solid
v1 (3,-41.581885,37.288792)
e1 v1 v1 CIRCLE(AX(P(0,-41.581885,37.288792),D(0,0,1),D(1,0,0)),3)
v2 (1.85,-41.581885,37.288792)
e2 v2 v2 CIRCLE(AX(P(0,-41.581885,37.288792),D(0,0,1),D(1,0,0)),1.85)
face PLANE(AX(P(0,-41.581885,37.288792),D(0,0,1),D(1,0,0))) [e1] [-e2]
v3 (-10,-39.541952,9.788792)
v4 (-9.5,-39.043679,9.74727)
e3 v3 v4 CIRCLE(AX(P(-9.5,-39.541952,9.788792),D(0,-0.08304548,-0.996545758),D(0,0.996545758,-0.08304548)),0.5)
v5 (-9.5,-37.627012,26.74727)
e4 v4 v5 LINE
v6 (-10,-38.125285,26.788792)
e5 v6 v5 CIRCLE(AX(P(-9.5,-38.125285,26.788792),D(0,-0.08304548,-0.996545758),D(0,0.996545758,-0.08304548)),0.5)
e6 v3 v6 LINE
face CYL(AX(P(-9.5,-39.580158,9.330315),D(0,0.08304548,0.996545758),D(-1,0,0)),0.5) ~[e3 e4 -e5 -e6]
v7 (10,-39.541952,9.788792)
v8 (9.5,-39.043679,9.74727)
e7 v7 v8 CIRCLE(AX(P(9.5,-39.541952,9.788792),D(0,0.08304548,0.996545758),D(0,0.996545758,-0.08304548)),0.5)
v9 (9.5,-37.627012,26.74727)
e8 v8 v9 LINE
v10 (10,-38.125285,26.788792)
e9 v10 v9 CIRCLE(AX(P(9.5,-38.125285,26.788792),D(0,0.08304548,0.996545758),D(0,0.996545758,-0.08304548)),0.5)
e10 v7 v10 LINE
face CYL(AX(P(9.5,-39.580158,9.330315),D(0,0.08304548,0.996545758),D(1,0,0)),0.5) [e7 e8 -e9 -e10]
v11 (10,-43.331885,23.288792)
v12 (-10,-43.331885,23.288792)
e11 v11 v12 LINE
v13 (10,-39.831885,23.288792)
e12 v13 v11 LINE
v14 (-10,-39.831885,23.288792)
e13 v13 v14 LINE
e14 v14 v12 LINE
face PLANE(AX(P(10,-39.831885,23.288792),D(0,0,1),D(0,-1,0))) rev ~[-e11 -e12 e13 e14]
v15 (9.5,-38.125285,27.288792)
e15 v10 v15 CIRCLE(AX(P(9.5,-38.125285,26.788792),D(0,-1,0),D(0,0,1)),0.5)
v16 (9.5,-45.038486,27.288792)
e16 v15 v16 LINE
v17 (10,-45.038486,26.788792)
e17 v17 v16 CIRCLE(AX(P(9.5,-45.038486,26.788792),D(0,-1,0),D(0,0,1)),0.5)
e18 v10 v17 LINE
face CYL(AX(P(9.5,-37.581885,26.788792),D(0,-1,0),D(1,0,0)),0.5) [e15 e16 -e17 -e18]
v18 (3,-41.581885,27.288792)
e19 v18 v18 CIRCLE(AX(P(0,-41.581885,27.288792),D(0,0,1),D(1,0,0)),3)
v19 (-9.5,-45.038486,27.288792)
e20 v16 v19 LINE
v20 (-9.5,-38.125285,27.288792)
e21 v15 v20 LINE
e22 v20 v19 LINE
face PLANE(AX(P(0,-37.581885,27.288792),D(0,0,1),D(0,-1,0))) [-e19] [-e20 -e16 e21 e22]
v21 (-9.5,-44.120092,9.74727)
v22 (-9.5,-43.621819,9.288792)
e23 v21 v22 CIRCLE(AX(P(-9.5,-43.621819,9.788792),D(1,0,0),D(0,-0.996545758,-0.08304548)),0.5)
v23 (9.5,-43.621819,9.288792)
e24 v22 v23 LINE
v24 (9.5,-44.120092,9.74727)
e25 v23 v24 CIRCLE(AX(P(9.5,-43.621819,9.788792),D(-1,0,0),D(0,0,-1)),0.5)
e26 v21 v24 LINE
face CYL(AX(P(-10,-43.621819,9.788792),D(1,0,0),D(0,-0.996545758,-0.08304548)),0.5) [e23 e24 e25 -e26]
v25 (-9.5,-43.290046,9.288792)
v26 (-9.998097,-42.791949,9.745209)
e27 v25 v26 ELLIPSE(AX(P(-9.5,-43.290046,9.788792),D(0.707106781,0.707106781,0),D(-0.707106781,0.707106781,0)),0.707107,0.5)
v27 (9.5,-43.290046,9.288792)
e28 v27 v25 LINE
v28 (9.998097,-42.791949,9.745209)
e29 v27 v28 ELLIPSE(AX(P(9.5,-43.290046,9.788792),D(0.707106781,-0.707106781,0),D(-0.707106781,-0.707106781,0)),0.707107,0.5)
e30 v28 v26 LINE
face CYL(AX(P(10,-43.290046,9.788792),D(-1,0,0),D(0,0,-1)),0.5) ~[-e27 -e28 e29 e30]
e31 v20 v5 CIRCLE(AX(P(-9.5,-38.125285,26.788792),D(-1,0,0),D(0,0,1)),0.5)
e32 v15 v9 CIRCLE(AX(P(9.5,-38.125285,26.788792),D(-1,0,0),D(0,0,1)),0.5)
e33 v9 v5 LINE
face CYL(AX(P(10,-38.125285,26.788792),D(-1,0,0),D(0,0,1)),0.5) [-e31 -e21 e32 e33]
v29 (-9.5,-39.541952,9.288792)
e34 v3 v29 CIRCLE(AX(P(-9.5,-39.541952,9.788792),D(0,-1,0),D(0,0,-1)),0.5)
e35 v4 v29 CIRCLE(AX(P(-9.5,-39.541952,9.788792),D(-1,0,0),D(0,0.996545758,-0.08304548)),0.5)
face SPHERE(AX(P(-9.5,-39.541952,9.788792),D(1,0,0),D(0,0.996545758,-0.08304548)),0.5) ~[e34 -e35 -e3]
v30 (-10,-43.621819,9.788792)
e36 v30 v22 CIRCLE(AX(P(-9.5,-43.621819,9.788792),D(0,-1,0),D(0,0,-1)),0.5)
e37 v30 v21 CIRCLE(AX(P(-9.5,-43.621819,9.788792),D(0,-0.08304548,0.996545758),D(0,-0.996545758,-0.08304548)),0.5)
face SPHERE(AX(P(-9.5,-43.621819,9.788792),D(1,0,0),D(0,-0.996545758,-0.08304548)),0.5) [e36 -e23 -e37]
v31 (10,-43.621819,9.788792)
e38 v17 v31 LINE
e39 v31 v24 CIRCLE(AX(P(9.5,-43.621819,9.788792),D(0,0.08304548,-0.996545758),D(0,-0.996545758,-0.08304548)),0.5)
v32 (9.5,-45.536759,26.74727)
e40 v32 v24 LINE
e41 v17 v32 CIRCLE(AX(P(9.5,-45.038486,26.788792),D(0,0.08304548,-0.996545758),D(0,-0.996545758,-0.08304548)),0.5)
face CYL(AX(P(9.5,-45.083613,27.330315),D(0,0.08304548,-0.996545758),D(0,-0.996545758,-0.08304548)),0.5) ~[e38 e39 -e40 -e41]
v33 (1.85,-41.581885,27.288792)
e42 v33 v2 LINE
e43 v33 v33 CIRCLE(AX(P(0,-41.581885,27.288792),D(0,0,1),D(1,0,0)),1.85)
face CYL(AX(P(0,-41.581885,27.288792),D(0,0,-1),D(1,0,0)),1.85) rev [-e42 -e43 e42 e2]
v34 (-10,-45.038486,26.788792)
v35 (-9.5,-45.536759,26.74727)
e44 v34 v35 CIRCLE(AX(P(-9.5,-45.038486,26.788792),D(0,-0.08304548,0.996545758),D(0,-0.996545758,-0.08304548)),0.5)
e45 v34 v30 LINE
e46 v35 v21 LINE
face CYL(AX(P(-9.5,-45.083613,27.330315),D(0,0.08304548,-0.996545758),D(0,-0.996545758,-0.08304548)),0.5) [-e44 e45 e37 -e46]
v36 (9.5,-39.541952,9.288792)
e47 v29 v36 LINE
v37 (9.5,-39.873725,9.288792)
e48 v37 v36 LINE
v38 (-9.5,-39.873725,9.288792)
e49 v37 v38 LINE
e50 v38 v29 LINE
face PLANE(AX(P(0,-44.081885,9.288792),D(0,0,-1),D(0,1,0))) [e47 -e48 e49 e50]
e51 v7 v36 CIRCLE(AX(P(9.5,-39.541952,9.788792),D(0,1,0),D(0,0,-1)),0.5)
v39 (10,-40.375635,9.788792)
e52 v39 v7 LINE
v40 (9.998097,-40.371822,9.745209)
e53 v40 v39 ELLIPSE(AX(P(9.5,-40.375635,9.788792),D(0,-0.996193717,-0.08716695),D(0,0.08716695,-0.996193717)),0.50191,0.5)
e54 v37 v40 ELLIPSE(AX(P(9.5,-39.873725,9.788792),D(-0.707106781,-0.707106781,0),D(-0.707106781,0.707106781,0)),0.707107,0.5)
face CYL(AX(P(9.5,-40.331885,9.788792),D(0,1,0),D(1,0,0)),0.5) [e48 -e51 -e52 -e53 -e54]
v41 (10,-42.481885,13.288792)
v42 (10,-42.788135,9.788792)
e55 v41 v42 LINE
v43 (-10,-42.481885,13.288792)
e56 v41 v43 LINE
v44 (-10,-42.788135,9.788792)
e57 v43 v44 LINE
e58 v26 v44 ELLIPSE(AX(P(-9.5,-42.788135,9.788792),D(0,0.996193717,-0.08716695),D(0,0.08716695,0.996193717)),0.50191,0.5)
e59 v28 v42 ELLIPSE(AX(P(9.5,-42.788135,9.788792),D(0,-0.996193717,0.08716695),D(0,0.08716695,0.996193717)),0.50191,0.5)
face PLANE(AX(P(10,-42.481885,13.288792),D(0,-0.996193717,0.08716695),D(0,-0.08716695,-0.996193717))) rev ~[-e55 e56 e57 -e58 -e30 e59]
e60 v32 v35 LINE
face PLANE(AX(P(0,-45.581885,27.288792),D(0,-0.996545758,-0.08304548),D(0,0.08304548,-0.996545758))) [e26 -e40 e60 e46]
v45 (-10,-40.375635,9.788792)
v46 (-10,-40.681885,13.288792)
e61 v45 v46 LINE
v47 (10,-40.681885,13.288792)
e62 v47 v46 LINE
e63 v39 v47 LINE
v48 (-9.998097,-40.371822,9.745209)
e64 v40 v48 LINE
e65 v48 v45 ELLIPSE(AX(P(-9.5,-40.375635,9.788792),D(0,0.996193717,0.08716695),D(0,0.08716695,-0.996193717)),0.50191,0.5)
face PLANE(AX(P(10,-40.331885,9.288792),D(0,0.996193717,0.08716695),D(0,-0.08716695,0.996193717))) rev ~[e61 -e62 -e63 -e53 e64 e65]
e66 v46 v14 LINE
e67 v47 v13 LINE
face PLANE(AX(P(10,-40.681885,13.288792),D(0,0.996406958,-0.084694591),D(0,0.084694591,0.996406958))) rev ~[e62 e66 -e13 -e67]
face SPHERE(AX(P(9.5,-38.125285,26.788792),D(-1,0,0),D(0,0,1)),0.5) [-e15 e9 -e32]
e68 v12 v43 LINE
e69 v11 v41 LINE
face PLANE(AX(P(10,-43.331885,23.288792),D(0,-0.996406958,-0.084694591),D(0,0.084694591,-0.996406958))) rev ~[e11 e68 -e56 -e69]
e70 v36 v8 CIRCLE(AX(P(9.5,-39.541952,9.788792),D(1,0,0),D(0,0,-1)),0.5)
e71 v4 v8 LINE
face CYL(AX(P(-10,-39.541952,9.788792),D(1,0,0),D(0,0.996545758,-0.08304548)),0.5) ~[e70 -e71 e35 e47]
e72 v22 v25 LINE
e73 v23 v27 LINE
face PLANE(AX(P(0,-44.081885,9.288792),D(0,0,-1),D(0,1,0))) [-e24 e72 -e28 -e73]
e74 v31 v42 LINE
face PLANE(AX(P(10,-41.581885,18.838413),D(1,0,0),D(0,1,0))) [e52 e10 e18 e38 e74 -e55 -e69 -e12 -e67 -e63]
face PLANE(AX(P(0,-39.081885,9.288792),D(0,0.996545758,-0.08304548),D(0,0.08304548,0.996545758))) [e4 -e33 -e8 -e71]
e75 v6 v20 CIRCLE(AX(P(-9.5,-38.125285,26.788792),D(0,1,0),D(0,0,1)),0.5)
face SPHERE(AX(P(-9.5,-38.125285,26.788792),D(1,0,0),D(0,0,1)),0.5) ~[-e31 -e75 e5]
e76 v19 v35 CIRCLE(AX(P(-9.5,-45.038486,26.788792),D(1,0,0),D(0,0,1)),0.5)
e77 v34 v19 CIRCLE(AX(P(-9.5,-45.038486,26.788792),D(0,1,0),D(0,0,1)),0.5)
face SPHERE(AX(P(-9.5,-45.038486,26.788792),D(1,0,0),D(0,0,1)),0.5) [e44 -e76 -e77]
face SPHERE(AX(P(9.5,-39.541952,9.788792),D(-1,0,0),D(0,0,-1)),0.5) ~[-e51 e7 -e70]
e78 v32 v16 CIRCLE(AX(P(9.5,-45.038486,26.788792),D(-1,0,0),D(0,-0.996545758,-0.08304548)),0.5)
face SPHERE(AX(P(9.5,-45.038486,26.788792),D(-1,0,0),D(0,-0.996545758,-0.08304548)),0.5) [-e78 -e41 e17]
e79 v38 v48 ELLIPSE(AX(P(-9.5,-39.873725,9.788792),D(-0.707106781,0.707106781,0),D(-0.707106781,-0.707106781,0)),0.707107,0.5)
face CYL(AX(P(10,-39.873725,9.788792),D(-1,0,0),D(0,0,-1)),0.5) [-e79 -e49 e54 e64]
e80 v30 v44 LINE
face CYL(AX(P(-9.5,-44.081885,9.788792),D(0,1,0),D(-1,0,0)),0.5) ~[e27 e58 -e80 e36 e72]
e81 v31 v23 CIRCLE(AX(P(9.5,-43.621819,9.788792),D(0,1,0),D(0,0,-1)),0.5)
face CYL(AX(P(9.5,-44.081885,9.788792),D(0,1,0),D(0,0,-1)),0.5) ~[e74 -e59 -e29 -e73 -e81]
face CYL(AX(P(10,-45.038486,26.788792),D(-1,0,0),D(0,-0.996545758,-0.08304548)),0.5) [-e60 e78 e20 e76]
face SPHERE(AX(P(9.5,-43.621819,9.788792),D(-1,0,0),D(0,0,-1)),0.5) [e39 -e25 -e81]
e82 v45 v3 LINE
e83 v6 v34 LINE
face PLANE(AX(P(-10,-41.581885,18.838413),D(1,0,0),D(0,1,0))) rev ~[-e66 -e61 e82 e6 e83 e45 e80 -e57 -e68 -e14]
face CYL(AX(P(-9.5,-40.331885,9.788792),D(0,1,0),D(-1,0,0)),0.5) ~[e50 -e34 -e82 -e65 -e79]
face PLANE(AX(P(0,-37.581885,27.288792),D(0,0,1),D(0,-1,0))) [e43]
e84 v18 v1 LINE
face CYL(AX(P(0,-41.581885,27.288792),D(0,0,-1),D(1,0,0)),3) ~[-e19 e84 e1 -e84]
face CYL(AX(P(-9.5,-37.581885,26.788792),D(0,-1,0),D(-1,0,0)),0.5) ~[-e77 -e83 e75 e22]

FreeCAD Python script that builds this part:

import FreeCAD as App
import Part
import Sketcher


def edges_at(feature, points):
    """Names of the edges that pass closest to the given points."""
    edges = feature.Shape.Edges
    near = lambda p: min(range(len(edges)), key=lambda i: edges[i].distToShape(Part.Vertex(*p))[0])
    return sorted({f"Edge{near(p) + 1}" for p in points})


def add_polygon(sketch, points):
    """Adds a closed chain of lines whose ends are joined by coincident constraints."""
    first, n = sketch.GeometryCount, len(points)
    for a, b in zip(points, points[1:] + points[:1]):
        sketch.addGeometry(Part.LineSegment(App.Vector(*a, 0), App.Vector(*b, 0)), False)
    for i in range(n):
        sketch.addConstraint(Sketcher.Constraint("Coincident", first + i, 2, first + (i + 1) % n, 1))

doc = App.newDocument("Part")
body = doc.addObject("PartDesign::Body", "Body")

# Sketch on YZ plane
sketch1 = body.newObject("Sketcher::SketchObject", "Sketch")
sketch1.AttachmentSupport = (doc.getObject("YZ_Plane"), [""])
sketch1.MapMode = "FlatFace"
add_polygon(sketch1, [(-46, 27), (-44, 9), (-39, 9), (-38, 27)])  # lines 0-3
sketch1.addConstraint(Sketcher.Constraint("Horizontal", 1))
sketch1.addConstraint(Sketcher.Constraint("Horizontal", 3))
sketch1.addConstraint(Sketcher.Constraint("Equal", 0, 2))
sketch1.addConstraint(Sketcher.Constraint("DistanceX", 1, 1, 1, 2, 5.0))
sketch1.addConstraint(Sketcher.Constraint("DistanceX", 3, 2, 3, 1, 8.0))
sketch1.addConstraint(Sketcher.Constraint("DistanceY", 1, 2, 2, 2, 18.0))
sketch1.addConstraint(Sketcher.Constraint("DistanceX", 0, 2, -1, 1, 44.081885))
sketch1.addConstraint(Sketcher.Constraint("DistanceY", -1, 1, 0, 2, 9.288792))
pad1 = body.newObject("PartDesign::Pad", "Pad")
pad1.Profile = sketch1
pad1.Length = 20
pad1.Midplane = True

# Sketch on YZ plane
sketch2 = body.newObject("Sketcher::SketchObject", "Sketch001")
sketch2.AttachmentSupport = (doc.getObject("YZ_Plane"), [""])
sketch2.MapMode = "FlatFace"
sketch2.AttachmentOffset = App.Placement(App.Vector(0, 0, 10), App.Rotation())
add_polygon(sketch2, [(-42.8, 9.3), (-40.3, 9.3), (-40.7, 13.3), (-39.8, 23.3), (-43.3, 23.3), (-42.5, 13.3)])  # lines 0-5
sketch2.addConstraint(Sketcher.Constraint("Horizontal", 0))
sketch2.addConstraint(Sketcher.Constraint("Horizontal", 3))
sketch2.addConstraint(Sketcher.Constraint("Horizontal", 1, 2, 4, 2))
sketch2.addConstraint(Sketcher.Constraint("Equal", 2, 4))
sketch2.addConstraint(Sketcher.Constraint("Equal", 1, 5))
sketch2.addConstraint(Sketcher.Constraint("DistanceX", 0, 1, 0, 2, 2.5))
sketch2.addConstraint(Sketcher.Constraint("DistanceX", 3, 2, 3, 1, 3.5))
sketch2.addConstraint(Sketcher.Constraint("DistanceY", 0, 2, 1, 2, 4.0))
sketch2.addConstraint(Sketcher.Constraint("DistanceY", 1, 2, 2, 2, 10.0))
sketch2.addConstraint(Sketcher.Constraint("DistanceX", 4, 2, 1, 2, 1.8))
sketch2.addConstraint(Sketcher.Constraint("DistanceX", 0, 2, -1, 1, 40.331885))
sketch2.addConstraint(Sketcher.Constraint("DistanceY", -1, 1, 0, 2, 9.288792))
pocket1 = body.newObject("PartDesign::Pocket", "Pocket")
pocket1.Profile = sketch2
pocket1.Length = 25
doc.recompute()

fillet = body.newObject("PartDesign::Fillet", "Fillet")
fillet.Base = (pocket1, edges_at(pocket1, [
    (10, -44.832, 18.289),
    (10, -41.582, 27.289),
    (10, -38.332, 18.289),
    (0, -39.082, 9.289),
    (0, -44.082, 9.289),
    (-10, -44.832, 18.289),
    (-10, -38.332, 18.289),
    (0, -37.582, 27.289),
    (0, -45.582, 27.289),
    (-10, -41.582, 27.289),
    (-10, -39.707, 9.289),
    (0, -40.332, 9.289),
    (-10, -43.457, 9.289),
    (0, -42.832, 9.289),
    (10, -39.707, 9.289),
    (10, -43.457, 9.289),
]))
fillet.Radius = 0.5

# Sketch on XY plane
sketch3 = body.newObject("Sketcher::SketchObject", "Sketch002")
sketch3.AttachmentSupport = (doc.getObject("XY_Plane"), [""])
sketch3.MapMode = "FlatFace"
sketch3.AttachmentOffset = App.Placement(App.Vector(0, 0, 27.288792), App.Rotation())
sketch3.addGeometry(Part.Circle(App.Vector(0, -41.6, 0), App.Vector(0, 0, 1), 3), False)
sketch3.addGeometry(Part.Circle(App.Vector(0, -41.6, 0), App.Vector(0, 0, 1), 1.9), False)
sketch3.addConstraint(Sketcher.Constraint("Coincident", 1, 3, 0, 3))
sketch3.addConstraint(Sketcher.Constraint("PointOnObject", 0, 3, -2))
sketch3.addConstraint(Sketcher.Constraint("Diameter", 0, 6.0))
sketch3.addConstraint(Sketcher.Constraint("Diameter", 1, 3.7))
sketch3.addConstraint(Sketcher.Constraint("DistanceY", 0, 3, -1, 1, 41.581885))
pad2 = body.newObject("PartDesign::Pad", "Pad001")
pad2.Profile = sketch3
pad2.Length = 10

doc.recompute()
